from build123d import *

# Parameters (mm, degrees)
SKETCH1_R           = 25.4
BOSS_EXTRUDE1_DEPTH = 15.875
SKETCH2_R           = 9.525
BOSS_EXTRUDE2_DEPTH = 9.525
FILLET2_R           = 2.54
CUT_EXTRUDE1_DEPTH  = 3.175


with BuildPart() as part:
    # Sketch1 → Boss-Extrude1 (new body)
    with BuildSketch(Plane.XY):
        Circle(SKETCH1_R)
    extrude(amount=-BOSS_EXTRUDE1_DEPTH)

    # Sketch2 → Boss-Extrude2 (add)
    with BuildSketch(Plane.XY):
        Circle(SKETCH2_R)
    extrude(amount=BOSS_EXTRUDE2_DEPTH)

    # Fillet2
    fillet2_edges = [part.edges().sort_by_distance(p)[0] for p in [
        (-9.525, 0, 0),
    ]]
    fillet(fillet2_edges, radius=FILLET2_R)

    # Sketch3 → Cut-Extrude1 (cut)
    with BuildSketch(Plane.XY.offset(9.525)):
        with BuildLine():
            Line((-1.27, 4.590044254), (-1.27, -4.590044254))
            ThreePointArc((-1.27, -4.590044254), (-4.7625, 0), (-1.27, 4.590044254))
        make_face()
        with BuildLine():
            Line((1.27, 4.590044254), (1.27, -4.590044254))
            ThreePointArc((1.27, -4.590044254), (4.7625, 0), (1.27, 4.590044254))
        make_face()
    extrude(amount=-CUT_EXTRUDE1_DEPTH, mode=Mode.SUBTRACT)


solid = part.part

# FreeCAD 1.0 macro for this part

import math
import FreeCAD as App
import Part
import Sketcher
from FreeCAD import Vector
Q = App.Units.Quantity


def edges_at(feature, points):
    """Names of the edges that pass closest to the given points."""
    edges = feature.Shape.Edges
    near = lambda p: min(range(len(edges)), key=lambda i: edges[i].distToShape(Part.Vertex(*p))[0])
    return sorted({f"Edge{near(p) + 1}" for p in points})

doc = App.newDocument("Part")
params = doc.addObject("Spreadsheet::Sheet", "Params")
for row, (alias, value) in enumerate([
    ("sketch1_diameter", "2 in"),
    ("pad1_length", "0.625 in"),
    ("sketch2_diameter", "0.75 in"),
    ("pad2_length", "0.375 in"),
    ("fillet_radius", "0.1 in"),
    ("sketch3_radius", "0.1875 in"),
    ("pocket1_length", "0.125 in"),
], start=1):
    params.set(f"A{row}", alias)
    params.set(f"B{row}", "=" + value)
    params.setAlias(f"B{row}", alias)

body = doc.addObject("PartDesign::Body", "Body")

# Sketch on XY plane
sketch1 = body.newObject("Sketcher::SketchObject", "Sketch")
sketch1.AttachmentSupport = (doc.getObject("XY_Plane"), [""])
sketch1.MapMode = "FlatFace"
sketch1.addGeometry(Part.Circle(Vector(0, 0, 0), Vector(0, 0, 1), 25), False)
sketch1.addConstraint([
    Sketcher.Constraint("Coincident", 0, 3, -1, 1),
    Sketcher.Constraint("Diameter", 0, Q("2 in")),
])
sketch1.setExpression("Constraints[1]", "Params.sketch1_diameter")
pad1 = body.newObject("PartDesign::Pad", "Pad")
pad1.Profile = sketch1
pad1.setExpression("Length", "Params.pad1_length")
pad1.Reversed = True

# Sketch on XY plane
sketch2 = body.newObject("Sketcher::SketchObject", "Sketch001")
sketch2.AttachmentSupport = (doc.getObject("XY_Plane"), [""])
sketch2.MapMode = "FlatFace"
sketch2.addGeometry(Part.Circle(Vector(0, 0, 0), Vector(0, 0, 1), 10), False)
sketch2.addConstraint([
    Sketcher.Constraint("Coincident", 0, 3, -1, 1),
    Sketcher.Constraint("Diameter", 0, Q("0.75 in")),
])
sketch2.setExpression("Constraints[1]", "Params.sketch2_diameter")
pad2 = body.newObject("PartDesign::Pad", "Pad001")
pad2.Profile = sketch2
pad2.setExpression("Length", "Params.pad2_length")
doc.recompute()

fillet = body.newObject("PartDesign::Fillet", "Fillet")
fillet.Base = (pad2, edges_at(pad2, [(-9.525, 0, 0)]))
fillet.setExpression("Radius", "Params.fillet_radius")

# Sketch on XY plane
sketch3 = body.newObject("Sketcher::SketchObject", "Sketch002")
sketch3.AttachmentSupport = (doc.getObject("XY_Plane"), [""])
sketch3.MapMode = "FlatFace"
sketch3.AttachmentOffset = App.Placement(Vector(0, 0, 0.375 * 25.4), App.Rotation())
sketch3.addGeometry([
    Part.LineSegment(Vector(-1.3, -4.6, 0), Vector(-1.3, 4.6, 0)),
    Part.ArcOfCircle(Part.Circle(Vector(0, 0, 0), Vector(0, 0, 1), 4.8), math.radians(105), math.radians(255)),
    Part.LineSegment(Vector(1.3, 4.6, 0), Vector(1.3, -4.6, 0)),
    Part.ArcOfCircle(Part.Circle(Vector(0, 0, 0), Vector(0, 0, 1), 4.8), math.radians(-75), math.radians(75)),
], False)
sketch3.addConstraint([
    Sketcher.Constraint("Coincident", 0, 1, 1, 2),
    Sketcher.Constraint("Coincident", 1, 1, 0, 2),
    Sketcher.Constraint("Coincident", 2, 1, 3, 2),
    Sketcher.Constraint("Coincident", 3, 1, 2, 2),
    Sketcher.Constraint("Vertical", 0),
    Sketcher.Constraint("Vertical", 2),
    Sketcher.Constraint("Coincident", 1, 3, -1, 1),
    Sketcher.Constraint("Coincident", 3, 3, -1, 1),
    Sketcher.Constraint("Equal", 1, 3),
    Sketcher.Constraint("Horizontal", 1, 1, 2, 1),
    Sketcher.Constraint("Radius", 1, Q("0.1875 in")),
    Sketcher.Constraint("DistanceX", 1, 1, 2, 1, Q("0.1 in")),
])
sketch3.setExpression("Constraints[10]", "Params.sketch3_radius")
pocket1 = body.newObject("PartDesign::Pocket", "Pocket")
pocket1.Profile = sketch3
pocket1.setExpression("Length", "Params.pocket1_length")

doc.recompute()
